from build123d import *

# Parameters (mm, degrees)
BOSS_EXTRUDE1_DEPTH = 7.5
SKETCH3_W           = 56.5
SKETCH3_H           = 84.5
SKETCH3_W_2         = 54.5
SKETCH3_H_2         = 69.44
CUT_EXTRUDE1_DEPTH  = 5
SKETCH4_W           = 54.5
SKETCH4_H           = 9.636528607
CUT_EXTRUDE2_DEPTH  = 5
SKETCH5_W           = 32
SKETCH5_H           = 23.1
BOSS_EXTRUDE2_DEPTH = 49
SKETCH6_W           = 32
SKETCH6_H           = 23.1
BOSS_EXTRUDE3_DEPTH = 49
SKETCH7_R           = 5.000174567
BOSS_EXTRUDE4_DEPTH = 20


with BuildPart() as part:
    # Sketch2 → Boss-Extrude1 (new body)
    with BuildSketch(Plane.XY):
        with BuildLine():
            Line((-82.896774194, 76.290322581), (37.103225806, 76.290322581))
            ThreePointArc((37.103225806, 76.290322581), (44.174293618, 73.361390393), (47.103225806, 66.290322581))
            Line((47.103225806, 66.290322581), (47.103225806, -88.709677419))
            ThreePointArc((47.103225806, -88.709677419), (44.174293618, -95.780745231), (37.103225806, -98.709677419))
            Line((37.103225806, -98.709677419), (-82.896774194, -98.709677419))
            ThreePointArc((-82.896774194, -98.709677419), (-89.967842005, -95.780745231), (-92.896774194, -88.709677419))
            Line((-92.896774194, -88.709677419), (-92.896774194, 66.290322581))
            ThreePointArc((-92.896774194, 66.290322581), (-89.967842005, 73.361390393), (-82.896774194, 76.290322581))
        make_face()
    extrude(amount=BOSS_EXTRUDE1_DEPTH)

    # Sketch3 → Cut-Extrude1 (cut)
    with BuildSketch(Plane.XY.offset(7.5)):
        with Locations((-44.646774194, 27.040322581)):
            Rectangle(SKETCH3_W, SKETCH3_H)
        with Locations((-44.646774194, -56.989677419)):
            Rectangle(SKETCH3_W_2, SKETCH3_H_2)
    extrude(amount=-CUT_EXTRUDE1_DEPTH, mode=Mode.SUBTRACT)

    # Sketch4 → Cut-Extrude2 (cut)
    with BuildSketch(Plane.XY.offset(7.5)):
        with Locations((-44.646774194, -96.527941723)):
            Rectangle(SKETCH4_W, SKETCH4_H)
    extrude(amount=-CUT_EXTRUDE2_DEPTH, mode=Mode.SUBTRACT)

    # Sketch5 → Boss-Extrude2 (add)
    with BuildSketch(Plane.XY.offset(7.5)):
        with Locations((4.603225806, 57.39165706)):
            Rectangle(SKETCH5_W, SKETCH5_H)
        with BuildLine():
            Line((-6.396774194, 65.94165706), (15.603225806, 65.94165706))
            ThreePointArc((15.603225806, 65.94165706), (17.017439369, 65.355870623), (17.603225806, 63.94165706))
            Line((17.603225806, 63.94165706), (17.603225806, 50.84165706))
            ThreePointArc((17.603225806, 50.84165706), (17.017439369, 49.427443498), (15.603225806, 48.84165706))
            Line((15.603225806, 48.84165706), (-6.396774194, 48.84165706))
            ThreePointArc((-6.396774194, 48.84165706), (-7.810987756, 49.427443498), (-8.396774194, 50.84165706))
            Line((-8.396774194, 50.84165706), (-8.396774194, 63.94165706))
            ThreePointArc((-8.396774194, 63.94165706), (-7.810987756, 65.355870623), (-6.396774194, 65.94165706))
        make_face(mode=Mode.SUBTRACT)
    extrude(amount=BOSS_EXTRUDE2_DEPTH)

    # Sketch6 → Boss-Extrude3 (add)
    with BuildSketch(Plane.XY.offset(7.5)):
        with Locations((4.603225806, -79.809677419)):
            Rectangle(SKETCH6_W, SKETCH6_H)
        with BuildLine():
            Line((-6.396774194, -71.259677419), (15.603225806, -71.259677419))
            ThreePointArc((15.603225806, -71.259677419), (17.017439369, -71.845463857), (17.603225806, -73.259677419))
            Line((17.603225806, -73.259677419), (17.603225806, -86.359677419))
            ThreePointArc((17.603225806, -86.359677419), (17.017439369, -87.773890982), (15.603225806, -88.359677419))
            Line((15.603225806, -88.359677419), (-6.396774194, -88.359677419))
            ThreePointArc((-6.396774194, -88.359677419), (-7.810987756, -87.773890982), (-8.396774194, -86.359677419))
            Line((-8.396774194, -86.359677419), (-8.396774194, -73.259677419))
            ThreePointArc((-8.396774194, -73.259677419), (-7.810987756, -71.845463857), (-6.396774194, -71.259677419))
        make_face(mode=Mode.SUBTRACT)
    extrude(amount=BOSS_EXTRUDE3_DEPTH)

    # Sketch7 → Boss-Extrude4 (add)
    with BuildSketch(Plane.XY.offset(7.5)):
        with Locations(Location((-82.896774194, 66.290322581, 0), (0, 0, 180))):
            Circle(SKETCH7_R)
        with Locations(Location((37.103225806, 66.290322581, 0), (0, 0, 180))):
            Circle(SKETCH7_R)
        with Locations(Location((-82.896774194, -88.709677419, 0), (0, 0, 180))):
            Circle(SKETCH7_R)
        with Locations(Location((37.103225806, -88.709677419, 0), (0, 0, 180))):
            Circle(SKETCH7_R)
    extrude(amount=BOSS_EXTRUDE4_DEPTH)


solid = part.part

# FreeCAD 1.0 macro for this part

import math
import FreeCAD as App
import Part
import Sketcher
Q = App.Units.Quantity


def add_polygon(sketch, points):
    """Adds a closed chain of lines whose ends are joined by coincident constraints."""
    first, n = sketch.GeometryCount, len(points)
    for a, b in zip(points, points[1:] + points[:1]):
        sketch.addGeometry(Part.LineSegment(App.Vector(*a, 0), App.Vector(*b, 0)), False)
    for i in range(n):
        sketch.addConstraint(Sketcher.Constraint("Coincident", first + i, 2, first + (i + 1) % n, 1))

doc = App.newDocument("Part")
body = doc.addObject("PartDesign::Body", "Body")

sketch1 = body.newObject("Sketcher::SketchObject", "Sketch")
sketch1.AttachmentSupport = (doc.getObject("XY_Plane"), [""])
sketch1.MapMode = "FlatFace"
sketch1.addGeometry(Part.LineSegment(App.Vector(37, 76, 0), App.Vector(-83, 76, 0)), False)
sketch1.addGeometry(Part.ArcOfCircle(Part.Circle(App.Vector(-83, 66, 0), App.Vector(0, 0, 1), 10), math.radians(90), math.radians(180)), False)
sketch1.addGeometry(Part.LineSegment(App.Vector(-93, 66, 0), App.Vector(-93, -89, 0)), False)
sketch1.addGeometry(Part.ArcOfCircle(Part.Circle(App.Vector(-83, -89, 0), App.Vector(0, 0, 1), 10), math.radians(-180), math.radians(-90)), False)
sketch1.addGeometry(Part.LineSegment(App.Vector(-83, -99, 0), App.Vector(37, -99, 0)), False)
sketch1.addGeometry(Part.ArcOfCircle(Part.Circle(App.Vector(37, -89, 0), App.Vector(0, 0, 1), 10), math.radians(-90), math.radians(0)), False)
sketch1.addGeometry(Part.LineSegment(App.Vector(47, -89, 0), App.Vector(47, 66, 0)), False)
sketch1.addGeometry(Part.ArcOfCircle(Part.Circle(App.Vector(37, 66, 0), App.Vector(0, 0, 1), 10), math.radians(0), math.radians(90)), False)
sketch1.addConstraint(Sketcher.Constraint("Tangent", 0, 2, 1, 1))
sketch1.addConstraint(Sketcher.Constraint("Tangent", 1, 2, 2, 1))
sketch1.addConstraint(Sketcher.Constraint("Tangent", 2, 2, 3, 1))
sketch1.addConstraint(Sketcher.Constraint("Tangent", 3, 2, 4, 1))
sketch1.addConstraint(Sketcher.Constraint("Tangent", 4, 2, 5, 1))
sketch1.addConstraint(Sketcher.Constraint("Tangent", 5, 2, 6, 1))
sketch1.addConstraint(Sketcher.Constraint("Tangent", 6, 2, 7, 1))
sketch1.addConstraint(Sketcher.Constraint("Tangent", 7, 2, 0, 1))
sketch1.addConstraint(Sketcher.Constraint("Horizontal", 0))
sketch1.addConstraint(Sketcher.Constraint("Vertical", 2))
sketch1.addConstraint(Sketcher.Constraint("Horizontal", 4))
sketch1.addConstraint(Sketcher.Constraint("Vertical", 6))
sketch1.addConstraint(Sketcher.Constraint("Equal", 1, 3))
sketch1.addConstraint(Sketcher.Constraint("Equal", 3, 5))
sketch1.addConstraint(Sketcher.Constraint("Equal", 5, 7))
sketch1.addConstraint(Sketcher.Constraint("Radius", 1, Q("10 mm")))
sketch1.addConstraint(Sketcher.Constraint("DistanceX", 0, 2, 0, 1, Q("120 mm")))
sketch1.addConstraint(Sketcher.Constraint("DistanceY", 2, 2, 2, 1, Q("155 mm")))
sketch1.addConstraint(Sketcher.Constraint("DistanceX", 1, 3, -1, 1, Q("82.896774 mm")))
sketch1.addConstraint(Sketcher.Constraint("DistanceY", -1, 1, 1, 3, Q("66.290323 mm")))
pad1 = body.newObject("PartDesign::Pad", "Pad")
pad1.Profile = sketch1
pad1.Length = 7.5

sketch2 = body.newObject("Sketcher::SketchObject", "Sketch001")
sketch2.AttachmentSupport = (doc.getObject("XY_Plane"), [""])
sketch2.MapMode = "FlatFace"
sketch2.AttachmentOffset = App.Placement(App.Vector(0, 0, 7.5), App.Rotation())
add_polygon(sketch2, [(-73, 69), (-73, -15), (-16, -15), (-16, 69)])
add_polygon(sketch2, [(-72, -22), (-72, -92), (-17, -92), (-17, -22)])
sketch2.addConstraint(Sketcher.Constraint("Vertical", 0))
sketch2.addConstraint(Sketcher.Constraint("Horizontal", 1))
sketch2.addConstraint(Sketcher.Constraint("Vertical", 2))
sketch2.addConstraint(Sketcher.Constraint("Horizontal", 3))
sketch2.addConstraint(Sketcher.Constraint("Vertical", 4))
sketch2.addConstraint(Sketcher.Constraint("Horizontal", 5))
sketch2.addConstraint(Sketcher.Constraint("Vertical", 6))
sketch2.addConstraint(Sketcher.Constraint("Horizontal", 7))
sketch2.addConstraint(Sketcher.Constraint("DistanceX", 1, 1, 1, 2, Q("56.5 mm")))
sketch2.addConstraint(Sketcher.Constraint("DistanceX", 5, 1, 5, 2, Q("54.5 mm")))
sketch2.addConstraint(Sketcher.Constraint("DistanceY", 0, 2, 0, 1, Q("84.5 mm")))
sketch2.addConstraint(Sketcher.Constraint("DistanceX", 0, 2, 4, 2, Q("1 mm")))
sketch2.addConstraint(Sketcher.Constraint("DistanceY", 4, 2, 3, 2, Q("161 mm")))
sketch2.addConstraint(Sketcher.Constraint("DistanceY", 4, 2, 4, 1, Q("69.44 mm")))
sketch2.addConstraint(Sketcher.Constraint("DistanceX", 0, 2, -1, 1, Q("72.896774 mm")))
sketch2.addConstraint(Sketcher.Constraint("DistanceY", 0, 2, -1, 1, Q("15.209677 mm")))
pocket1 = body.newObject("PartDesign::Pocket", "Pocket")
pocket1.Profile = sketch2
pocket1.Length = 5

sketch3 = body.newObject("Sketcher::SketchObject", "Sketch002")
sketch3.AttachmentSupport = (doc.getObject("XY_Plane"), [""])
sketch3.MapMode = "FlatFace"
sketch3.AttachmentOffset = App.Placement(App.Vector(0, 0, 7.5), App.Rotation())
add_polygon(sketch3, [(-72, -92), (-72, -101), (-17, -101), (-17, -92)])
sketch3.addConstraint(Sketcher.Constraint("Vertical", 0))
sketch3.addConstraint(Sketcher.Constraint("Horizontal", 1))
sketch3.addConstraint(Sketcher.Constraint("Vertical", 2))
sketch3.addConstraint(Sketcher.Constraint("Horizontal", 3))
sketch3.addConstraint(Sketcher.Constraint("DistanceX", 1, 1, 1, 2, Q("54.5 mm")))
sketch3.addConstraint(Sketcher.Constraint("DistanceY", 0, 2, 0, 1, Q("9.636529 mm")))
sketch3.addConstraint(Sketcher.Constraint("DistanceX", 0, 2, -1, 1, Q("71.896774 mm")))
sketch3.addConstraint(Sketcher.Constraint("DistanceY", 0, 2, -1, 1, Q("101.346206 mm")))
pocket2 = body.newObject("PartDesign::Pocket", "Pocket001")
pocket2.Profile = sketch3
pocket2.Length = 5

sketch4 = body.newObject("Sketcher::SketchObject", "Sketch003")
sketch4.AttachmentSupport = (doc.getObject("XY_Plane"), [""])
sketch4.MapMode = "FlatFace"
sketch4.AttachmentOffset = App.Placement(App.Vector(0, 0, 7.5), App.Rotation())
add_polygon(sketch4, [(-11.4, 68.9), (-11.4, 45.8), (20.6, 45.8), (20.6, 68.9)])
sketch4.addGeometry(Part.ArcOfCircle(Part.Circle(App.Vector(-6.4, 63.9, 0), App.Vector(0, 0, 1), 2), math.radians(90), math.radians(180)), False)
sketch4.addGeometry(Part.LineSegment(App.Vector(-6.4, 65.9, 0), App.Vector(15.6, 65.9, 0)), False)
sketch4.addGeometry(Part.ArcOfCircle(Part.Circle(App.Vector(15.6, 63.9, 0), App.Vector(0, 0, 1), 2), math.radians(0), math.radians(90)), False)
sketch4.addGeometry(Part.LineSegment(App.Vector(17.6, 63.9, 0), App.Vector(17.6, 50.8, 0)), False)
sketch4.addGeometry(Part.ArcOfCircle(Part.Circle(App.Vector(15.6, 50.8, 0), App.Vector(0, 0, 1), 2), math.radians(-90), math.radians(0)), False)
sketch4.addGeometry(Part.LineSegment(App.Vector(15.6, 48.8, 0), App.Vector(-6.4, 48.8, 0)), False)
sketch4.addGeometry(Part.ArcOfCircle(Part.Circle(App.Vector(-6.4, 50.8, 0), App.Vector(0, 0, 1), 2), math.radians(-180), math.radians(-90)), False)
sketch4.addGeometry(Part.LineSegment(App.Vector(-8.4, 50.8, 0), App.Vector(-8.4, 63.9, 0)), False)
sketch4.addConstraint(Sketcher.Constraint("Tangent", 4, 1, 5, 1))
sketch4.addConstraint(Sketcher.Constraint("Tangent", 5, 2, 6, 2))
sketch4.addConstraint(Sketcher.Constraint("Tangent", 6, 1, 7, 1))
sketch4.addConstraint(Sketcher.Constraint("Tangent", 7, 2, 8, 2))
sketch4.addConstraint(Sketcher.Constraint("Tangent", 8, 1, 9, 1))
sketch4.addConstraint(Sketcher.Constraint("Tangent", 9, 2, 10, 2))
sketch4.addConstraint(Sketcher.Constraint("Tangent", 10, 1, 11, 1))
sketch4.addConstraint(Sketcher.Constraint("Tangent", 11, 2, 4, 2))
sketch4.addConstraint(Sketcher.Constraint("Vertical", 0))
sketch4.addConstraint(Sketcher.Constraint("Horizontal", 1))
sketch4.addConstraint(Sketcher.Constraint("Vertical", 2))
sketch4.addConstraint(Sketcher.Constraint("Horizontal", 3))
sketch4.addConstraint(Sketcher.Constraint("Horizontal", 5))
sketch4.addConstraint(Sketcher.Constraint("Vertical", 7))
sketch4.addConstraint(Sketcher.Constraint("Horizontal", 9))
sketch4.addConstraint(Sketcher.Constraint("Vertical", 11))
sketch4.addConstraint(Sketcher.Constraint("Equal", 4, 6))
sketch4.addConstraint(Sketcher.Constraint("Equal", 6, 8))
sketch4.addConstraint(Sketcher.Constraint("Equal", 8, 10))
sketch4.addConstraint(Sketcher.Constraint("Radius", 4, Q("2 mm")))
sketch4.addConstraint(Sketcher.Constraint("DistanceX", 1, 1, 1, 2, Q("32 mm")))
sketch4.addConstraint(Sketcher.Constraint("DistanceX", 5, 1, 5, 2, Q("22 mm")))
sketch4.addConstraint(Sketcher.Constraint("DistanceY", 0, 2, 0, 1, Q("23.1 mm")))
sketch4.addConstraint(Sketcher.Constraint("DistanceY", 7, 2, 7, 1, Q("13.1 mm")))
sketch4.addConstraint(Sketcher.Constraint("DistanceX", 0, 2, 10, 3, Q("5 mm")))
sketch4.addConstraint(Sketcher.Constraint("DistanceY", 0, 2, 10, 3, Q("5 mm")))
sketch4.addConstraint(Sketcher.Constraint("DistanceX", 4, 3, -1, 1, Q("6.396774 mm")))
sketch4.addConstraint(Sketcher.Constraint("DistanceY", -1, 1, 4, 3, Q("63.941657 mm")))
pad2 = body.newObject("PartDesign::Pad", "Pad001")
pad2.Profile = sketch4
pad2.Length = 49

sketch5 = body.newObject("Sketcher::SketchObject", "Sketch004")
sketch5.AttachmentSupport = (doc.getObject("XY_Plane"), [""])
sketch5.MapMode = "FlatFace"
sketch5.AttachmentOffset = App.Placement(App.Vector(0, 0, 7.5), App.Rotation())
add_polygon(sketch5, [(-11.4, -68.3), (-11.4, -91.4), (20.6, -91.4), (20.6, -68.3)])
sketch5.addGeometry(Part.ArcOfCircle(Part.Circle(App.Vector(-6.4, -73.3, 0), App.Vector(0, 0, 1), 2), math.radians(90), math.radians(180)), False)
sketch5.addGeometry(Part.LineSegment(App.Vector(-6.4, -71.3, 0), App.Vector(15.6, -71.3, 0)), False)
sketch5.addGeometry(Part.ArcOfCircle(Part.Circle(App.Vector(15.6, -73.3, 0), App.Vector(0, 0, 1), 2), math.radians(0), math.radians(90)), False)
sketch5.addGeometry(Part.LineSegment(App.Vector(17.6, -73.3, 0), App.Vector(17.6, -86.4, 0)), False)
sketch5.addGeometry(Part.ArcOfCircle(Part.Circle(App.Vector(15.6, -86.4, 0), App.Vector(0, 0, 1), 2), math.radians(-90), math.radians(0)), False)
sketch5.addGeometry(Part.LineSegment(App.Vector(15.6, -88.4, 0), App.Vector(-6.4, -88.4, 0)), False)
sketch5.addGeometry(Part.ArcOfCircle(Part.Circle(App.Vector(-6.4, -86.4, 0), App.Vector(0, 0, 1), 2), math.radians(180), math.radians(270)), False)
sketch5.addGeometry(Part.LineSegment(App.Vector(-8.4, -86.4, 0), App.Vector(-8.4, -73.3, 0)), False)
sketch5.addConstraint(Sketcher.Constraint("Tangent", 4, 1, 5, 1))
sketch5.addConstraint(Sketcher.Constraint("Tangent", 5, 2, 6, 2))
sketch5.addConstraint(Sketcher.Constraint("Tangent", 6, 1, 7, 1))
sketch5.addConstraint(Sketcher.Constraint("Tangent", 7, 2, 8, 2))
sketch5.addConstraint(Sketcher.Constraint("Tangent", 8, 1, 9, 1))
sketch5.addConstraint(Sketcher.Constraint("Tangent", 9, 2, 10, 2))
sketch5.addConstraint(Sketcher.Constraint("Tangent", 10, 1, 11, 1))
sketch5.addConstraint(Sketcher.Constraint("Tangent", 11, 2, 4, 2))
sketch5.addConstraint(Sketcher.Constraint("Vertical", 0))
sketch5.addConstraint(Sketcher.Constraint("Horizontal", 1))
sketch5.addConstraint(Sketcher.Constraint("Vertical", 2))
sketch5.addConstraint(Sketcher.Constraint("Horizontal", 3))
sketch5.addConstraint(Sketcher.Constraint("Horizontal", 5))
sketch5.addConstraint(Sketcher.Constraint("Vertical", 7))
sketch5.addConstraint(Sketcher.Constraint("Horizontal", 9))
sketch5.addConstraint(Sketcher.Constraint("Vertical", 11))
sketch5.addConstraint(Sketcher.Constraint("Equal", 4, 6))
sketch5.addConstraint(Sketcher.Constraint("Equal", 6, 8))
sketch5.addConstraint(Sketcher.Constraint("Equal", 8, 10))
sketch5.addConstraint(Sketcher.Constraint("Radius", 4, Q("2 mm")))
sketch5.addConstraint(Sketcher.Constraint("DistanceX", 1, 1, 1, 2, Q("32 mm")))
sketch5.addConstraint(Sketcher.Constraint("DistanceX", 5, 1, 5, 2, Q("22 mm")))
sketch5.addConstraint(Sketcher.Constraint("DistanceY", 0, 2, 0, 1, Q("23.1 mm")))
sketch5.addConstraint(Sketcher.Constraint("DistanceY", 7, 2, 7, 1, Q("13.1 mm")))
sketch5.addConstraint(Sketcher.Constraint("DistanceX", 0, 2, 10, 3, Q("5 mm")))
sketch5.addConstraint(Sketcher.Constraint("DistanceY", 0, 2, 10, 3, Q("5 mm")))
sketch5.addConstraint(Sketcher.Constraint("DistanceX", 4, 3, -1, 1, Q("6.396774 mm")))
sketch5.addConstraint(Sketcher.Constraint("DistanceY", 4, 3, -1, 1, Q("73.259677 mm")))
pad3 = body.newObject("PartDesign::Pad", "Pad002")
pad3.Profile = sketch5
pad3.Length = 49

sketch6 = body.newObject("Sketcher::SketchObject", "Sketch005")
sketch6.AttachmentSupport = (doc.getObject("XY_Plane"), [""])
sketch6.MapMode = "FlatFace"
sketch6.AttachmentOffset = App.Placement(App.Vector(0, 0, 7.5), App.Rotation())
sketch6.addGeometry(Part.Circle(App.Vector(-83, 66, 0), App.Vector(0, 0, 1), 5), False)
sketch6.addGeometry(Part.Circle(App.Vector(37, 66, 0), App.Vector(0, 0, 1), 5), False)
sketch6.addGeometry(Part.Circle(App.Vector(-83, -89, 0), App.Vector(0, 0, 1), 5), False)
sketch6.addGeometry(Part.Circle(App.Vector(37, -89, 0), App.Vector(0, 0, 1), 5), False)
sketch6.addConstraint(Sketcher.Constraint("Equal", 0, 1))
sketch6.addConstraint(Sketcher.Constraint("Equal", 1, 2))
sketch6.addConstraint(Sketcher.Constraint("Equal", 2, 3))
sketch6.addConstraint(Sketcher.Constraint("Horizontal", 0, 3, 1, 3))
sketch6.addConstraint(Sketcher.Constraint("Horizontal", 2, 3, 3, 3))
sketch6.addConstraint(Sketcher.Constraint("Vertical", 0, 3, 2, 3))
sketch6.addConstraint(Sketcher.Constraint("Vertical", 1, 3, 3, 3))
sketch6.addConstraint(Sketcher.Constraint("DistanceX", 0, 3, 1, 3, Q("120 mm")))
sketch6.addConstraint(Sketcher.Constraint("DistanceY", 2, 3, 0, 3, Q("155 mm")))
sketch6.addConstraint(Sketcher.Constraint("Diameter", 0, Q("10.000349 mm")))
sketch6.addConstraint(Sketcher.Constraint("DistanceX", 0, 3, -1, 1, Q("82.896774 mm")))
sketch6.addConstraint(Sketcher.Constraint("DistanceY", -1, 1, 0, 3, Q("66.290323 mm")))
pad4 = body.newObject("PartDesign::Pad", "Pad003")
pad4.Profile = sketch6
pad4.Length = 20

doc.recompute()
